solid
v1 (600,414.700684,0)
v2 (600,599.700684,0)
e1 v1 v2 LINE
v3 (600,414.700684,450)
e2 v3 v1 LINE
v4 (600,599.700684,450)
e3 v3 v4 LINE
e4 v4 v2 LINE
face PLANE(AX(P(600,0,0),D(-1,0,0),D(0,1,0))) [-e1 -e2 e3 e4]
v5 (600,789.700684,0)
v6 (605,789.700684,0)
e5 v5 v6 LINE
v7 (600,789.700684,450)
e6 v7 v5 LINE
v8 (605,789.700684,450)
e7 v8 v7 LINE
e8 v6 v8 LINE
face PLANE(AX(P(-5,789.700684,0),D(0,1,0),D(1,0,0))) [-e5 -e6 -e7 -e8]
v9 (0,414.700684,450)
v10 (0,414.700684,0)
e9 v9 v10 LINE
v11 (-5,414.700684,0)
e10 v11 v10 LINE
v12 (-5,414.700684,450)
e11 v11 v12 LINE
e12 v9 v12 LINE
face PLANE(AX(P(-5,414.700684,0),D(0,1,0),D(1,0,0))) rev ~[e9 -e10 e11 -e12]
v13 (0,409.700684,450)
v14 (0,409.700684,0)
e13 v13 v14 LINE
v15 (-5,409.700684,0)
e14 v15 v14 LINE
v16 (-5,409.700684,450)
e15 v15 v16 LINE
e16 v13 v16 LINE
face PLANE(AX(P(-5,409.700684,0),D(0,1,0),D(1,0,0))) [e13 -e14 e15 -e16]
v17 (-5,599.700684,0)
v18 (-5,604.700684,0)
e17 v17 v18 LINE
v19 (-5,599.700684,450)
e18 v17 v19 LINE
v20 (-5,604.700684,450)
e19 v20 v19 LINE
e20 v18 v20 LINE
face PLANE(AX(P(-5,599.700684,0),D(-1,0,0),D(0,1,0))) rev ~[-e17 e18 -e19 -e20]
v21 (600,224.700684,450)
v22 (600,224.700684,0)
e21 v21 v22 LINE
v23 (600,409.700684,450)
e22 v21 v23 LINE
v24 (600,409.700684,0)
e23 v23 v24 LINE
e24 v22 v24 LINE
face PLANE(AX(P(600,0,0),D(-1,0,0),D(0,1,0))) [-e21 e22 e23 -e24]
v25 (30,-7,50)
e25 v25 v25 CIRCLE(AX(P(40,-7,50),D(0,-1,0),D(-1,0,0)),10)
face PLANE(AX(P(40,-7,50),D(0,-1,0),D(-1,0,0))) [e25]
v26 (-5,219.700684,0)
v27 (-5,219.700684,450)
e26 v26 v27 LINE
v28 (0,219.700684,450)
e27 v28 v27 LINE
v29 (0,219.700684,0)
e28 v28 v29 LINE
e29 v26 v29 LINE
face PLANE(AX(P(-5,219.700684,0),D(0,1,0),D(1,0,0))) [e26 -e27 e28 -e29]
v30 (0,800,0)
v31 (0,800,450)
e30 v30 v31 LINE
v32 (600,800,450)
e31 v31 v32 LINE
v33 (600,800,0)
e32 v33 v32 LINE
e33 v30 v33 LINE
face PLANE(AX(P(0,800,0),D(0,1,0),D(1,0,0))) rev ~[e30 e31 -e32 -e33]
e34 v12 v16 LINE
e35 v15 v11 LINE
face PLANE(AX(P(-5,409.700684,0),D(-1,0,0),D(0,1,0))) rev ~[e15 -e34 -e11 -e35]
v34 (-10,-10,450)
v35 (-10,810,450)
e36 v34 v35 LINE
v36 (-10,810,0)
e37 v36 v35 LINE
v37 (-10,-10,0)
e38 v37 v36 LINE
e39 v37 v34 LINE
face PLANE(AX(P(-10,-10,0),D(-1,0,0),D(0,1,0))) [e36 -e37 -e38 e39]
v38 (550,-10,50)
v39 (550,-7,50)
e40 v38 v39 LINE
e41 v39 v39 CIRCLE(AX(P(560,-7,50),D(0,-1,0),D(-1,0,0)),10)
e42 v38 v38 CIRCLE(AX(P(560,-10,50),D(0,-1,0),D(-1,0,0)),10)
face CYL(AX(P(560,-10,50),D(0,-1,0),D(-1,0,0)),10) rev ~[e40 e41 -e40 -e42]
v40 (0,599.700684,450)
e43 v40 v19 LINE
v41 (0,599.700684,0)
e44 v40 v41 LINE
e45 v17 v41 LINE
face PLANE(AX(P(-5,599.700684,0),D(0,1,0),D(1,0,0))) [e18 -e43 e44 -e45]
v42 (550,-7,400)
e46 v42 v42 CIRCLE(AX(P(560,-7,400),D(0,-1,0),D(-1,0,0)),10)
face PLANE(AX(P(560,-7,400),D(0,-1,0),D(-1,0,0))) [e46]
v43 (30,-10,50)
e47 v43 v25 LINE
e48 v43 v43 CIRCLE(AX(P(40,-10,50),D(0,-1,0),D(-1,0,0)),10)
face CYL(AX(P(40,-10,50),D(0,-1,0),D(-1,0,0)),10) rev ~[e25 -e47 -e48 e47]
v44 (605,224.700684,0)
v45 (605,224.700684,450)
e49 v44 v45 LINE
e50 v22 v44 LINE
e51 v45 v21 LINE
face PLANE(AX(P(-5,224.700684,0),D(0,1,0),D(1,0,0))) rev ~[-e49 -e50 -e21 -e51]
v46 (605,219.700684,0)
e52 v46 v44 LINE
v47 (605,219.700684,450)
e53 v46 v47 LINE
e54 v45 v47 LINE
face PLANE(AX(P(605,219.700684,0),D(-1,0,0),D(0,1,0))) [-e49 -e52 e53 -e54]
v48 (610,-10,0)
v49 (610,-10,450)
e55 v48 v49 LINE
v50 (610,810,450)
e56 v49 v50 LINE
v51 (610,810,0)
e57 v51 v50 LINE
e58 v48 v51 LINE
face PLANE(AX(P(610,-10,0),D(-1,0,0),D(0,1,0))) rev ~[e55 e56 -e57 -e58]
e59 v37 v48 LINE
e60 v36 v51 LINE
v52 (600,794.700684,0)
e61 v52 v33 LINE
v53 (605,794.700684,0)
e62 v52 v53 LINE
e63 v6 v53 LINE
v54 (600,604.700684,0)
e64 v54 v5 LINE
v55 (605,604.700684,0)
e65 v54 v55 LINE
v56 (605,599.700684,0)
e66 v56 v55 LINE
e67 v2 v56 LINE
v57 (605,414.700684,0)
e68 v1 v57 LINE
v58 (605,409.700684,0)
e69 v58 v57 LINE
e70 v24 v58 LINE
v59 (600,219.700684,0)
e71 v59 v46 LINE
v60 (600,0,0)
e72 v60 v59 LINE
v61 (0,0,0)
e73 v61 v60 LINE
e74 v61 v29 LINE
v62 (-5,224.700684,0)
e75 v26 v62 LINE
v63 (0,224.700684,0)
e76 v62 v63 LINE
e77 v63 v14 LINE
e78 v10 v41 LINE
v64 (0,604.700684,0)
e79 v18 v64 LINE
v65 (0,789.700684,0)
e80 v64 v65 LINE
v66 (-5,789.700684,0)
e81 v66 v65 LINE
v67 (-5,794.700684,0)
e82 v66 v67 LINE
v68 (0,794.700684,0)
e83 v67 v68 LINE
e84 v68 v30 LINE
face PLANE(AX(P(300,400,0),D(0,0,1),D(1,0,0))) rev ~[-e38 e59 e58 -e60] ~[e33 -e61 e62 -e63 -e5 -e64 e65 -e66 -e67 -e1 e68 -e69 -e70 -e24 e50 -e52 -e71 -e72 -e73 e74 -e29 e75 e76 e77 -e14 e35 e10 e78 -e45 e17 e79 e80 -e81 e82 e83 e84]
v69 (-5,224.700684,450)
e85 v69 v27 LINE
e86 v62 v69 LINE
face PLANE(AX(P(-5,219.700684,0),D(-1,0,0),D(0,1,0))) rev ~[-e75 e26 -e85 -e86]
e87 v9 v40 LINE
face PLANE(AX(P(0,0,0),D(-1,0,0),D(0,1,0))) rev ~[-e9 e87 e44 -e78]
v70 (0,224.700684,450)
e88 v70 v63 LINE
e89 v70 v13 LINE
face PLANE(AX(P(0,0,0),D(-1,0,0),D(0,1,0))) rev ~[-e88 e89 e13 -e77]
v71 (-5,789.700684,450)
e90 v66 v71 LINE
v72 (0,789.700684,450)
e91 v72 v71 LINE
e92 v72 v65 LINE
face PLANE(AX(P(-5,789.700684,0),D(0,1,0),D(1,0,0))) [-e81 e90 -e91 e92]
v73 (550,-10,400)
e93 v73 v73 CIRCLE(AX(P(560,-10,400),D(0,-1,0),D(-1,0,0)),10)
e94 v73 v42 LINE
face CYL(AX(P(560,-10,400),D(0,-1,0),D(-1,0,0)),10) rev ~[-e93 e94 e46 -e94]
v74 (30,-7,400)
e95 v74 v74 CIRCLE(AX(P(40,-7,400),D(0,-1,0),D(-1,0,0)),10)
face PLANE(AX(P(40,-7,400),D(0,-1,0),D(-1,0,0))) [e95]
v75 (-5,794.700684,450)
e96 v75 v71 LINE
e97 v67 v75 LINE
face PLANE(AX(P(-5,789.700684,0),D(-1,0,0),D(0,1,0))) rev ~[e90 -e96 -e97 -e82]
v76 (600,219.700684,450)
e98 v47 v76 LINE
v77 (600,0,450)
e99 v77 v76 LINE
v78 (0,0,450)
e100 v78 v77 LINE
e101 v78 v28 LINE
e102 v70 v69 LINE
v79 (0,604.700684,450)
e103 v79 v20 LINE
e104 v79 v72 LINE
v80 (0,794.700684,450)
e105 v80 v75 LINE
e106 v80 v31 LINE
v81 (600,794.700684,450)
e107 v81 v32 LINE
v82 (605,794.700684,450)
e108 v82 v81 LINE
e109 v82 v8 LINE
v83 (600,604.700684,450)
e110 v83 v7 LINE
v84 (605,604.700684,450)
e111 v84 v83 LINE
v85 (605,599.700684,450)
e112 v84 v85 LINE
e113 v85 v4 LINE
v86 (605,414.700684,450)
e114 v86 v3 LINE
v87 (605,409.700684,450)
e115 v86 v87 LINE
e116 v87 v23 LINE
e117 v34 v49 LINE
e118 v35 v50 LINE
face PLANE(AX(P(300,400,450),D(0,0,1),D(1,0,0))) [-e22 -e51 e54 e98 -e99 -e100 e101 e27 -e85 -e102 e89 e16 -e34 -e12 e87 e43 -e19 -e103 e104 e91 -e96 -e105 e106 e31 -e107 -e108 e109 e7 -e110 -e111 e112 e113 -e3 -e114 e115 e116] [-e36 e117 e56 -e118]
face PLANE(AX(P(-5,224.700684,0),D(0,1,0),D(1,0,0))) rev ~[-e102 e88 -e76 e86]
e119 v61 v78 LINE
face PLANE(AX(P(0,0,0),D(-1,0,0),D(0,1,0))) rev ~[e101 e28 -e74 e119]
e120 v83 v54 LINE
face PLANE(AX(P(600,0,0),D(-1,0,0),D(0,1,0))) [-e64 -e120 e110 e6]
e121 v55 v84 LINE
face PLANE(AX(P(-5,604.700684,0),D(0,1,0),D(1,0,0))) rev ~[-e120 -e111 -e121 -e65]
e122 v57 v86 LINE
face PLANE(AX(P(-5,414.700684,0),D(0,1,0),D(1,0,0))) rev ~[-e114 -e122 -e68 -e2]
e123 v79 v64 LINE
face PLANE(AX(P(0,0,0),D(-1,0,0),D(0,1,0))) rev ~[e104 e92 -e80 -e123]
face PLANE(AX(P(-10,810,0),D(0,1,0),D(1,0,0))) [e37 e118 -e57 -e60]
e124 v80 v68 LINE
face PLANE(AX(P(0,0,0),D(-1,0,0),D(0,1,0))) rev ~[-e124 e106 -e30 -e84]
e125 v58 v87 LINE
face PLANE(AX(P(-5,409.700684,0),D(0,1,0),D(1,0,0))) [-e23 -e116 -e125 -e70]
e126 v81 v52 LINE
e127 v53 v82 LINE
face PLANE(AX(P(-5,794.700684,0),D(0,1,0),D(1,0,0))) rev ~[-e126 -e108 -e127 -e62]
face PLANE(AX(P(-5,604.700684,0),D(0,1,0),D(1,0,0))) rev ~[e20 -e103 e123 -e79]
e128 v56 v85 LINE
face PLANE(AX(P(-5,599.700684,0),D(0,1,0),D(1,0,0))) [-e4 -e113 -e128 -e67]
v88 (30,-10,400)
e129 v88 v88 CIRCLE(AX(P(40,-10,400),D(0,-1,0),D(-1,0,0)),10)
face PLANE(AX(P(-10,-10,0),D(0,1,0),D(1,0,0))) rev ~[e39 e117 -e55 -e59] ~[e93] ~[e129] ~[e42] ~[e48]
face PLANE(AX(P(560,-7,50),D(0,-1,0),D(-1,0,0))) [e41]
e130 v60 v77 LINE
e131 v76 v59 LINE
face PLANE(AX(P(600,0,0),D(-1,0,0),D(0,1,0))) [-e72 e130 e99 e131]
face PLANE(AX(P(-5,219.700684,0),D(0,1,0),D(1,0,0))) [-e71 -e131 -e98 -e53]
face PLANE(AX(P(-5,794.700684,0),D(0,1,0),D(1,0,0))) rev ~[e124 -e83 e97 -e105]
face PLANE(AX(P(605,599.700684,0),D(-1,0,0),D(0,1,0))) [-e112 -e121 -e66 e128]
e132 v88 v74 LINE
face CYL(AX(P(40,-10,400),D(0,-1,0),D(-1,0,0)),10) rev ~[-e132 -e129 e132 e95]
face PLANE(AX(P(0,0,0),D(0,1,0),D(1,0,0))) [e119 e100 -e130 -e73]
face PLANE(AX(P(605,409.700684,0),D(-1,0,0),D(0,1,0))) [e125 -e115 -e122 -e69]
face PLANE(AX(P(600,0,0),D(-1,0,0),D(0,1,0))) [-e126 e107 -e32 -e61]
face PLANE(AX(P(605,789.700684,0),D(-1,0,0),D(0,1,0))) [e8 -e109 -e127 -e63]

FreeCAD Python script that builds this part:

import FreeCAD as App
import Part
import Sketcher
from FreeCAD import Vector

doc = App.newDocument("Part")
body = doc.addObject("PartDesign::Body", "Body")

sketch1 = doc.addObject("Sketcher::SketchObject", "Sketch")
body.addObject(sketch1)
sketch1.AttachmentSupport = (doc.XY_Plane, [""])
sketch1.MapMode = "FlatFace"
sketch1.addGeometry([
    Part.LineSegment(Vector(-10, 810, 0), Vector(-10, -10, 0)),
    Part.LineSegment(Vector(-10, -10, 0), Vector(610, -10, 0)),
    Part.LineSegment(Vector(610, -10, 0), Vector(610, 810, 0)),
    Part.LineSegment(Vector(610, 810, 0), Vector(-10, 810, 0)),
    Part.LineSegment(Vector(600, 0, 0), Vector(0, 0, 0)),
    Part.LineSegment(Vector(0, 0, 0), Vector(0, 800, 0)),
    Part.LineSegment(Vector(0, 800, 0), Vector(600, 800, 0)),
    Part.LineSegment(Vector(600, 800, 0), Vector(600, 0, 0)),
], False)
sketch1.addConstraint([
    Sketcher.Constraint("Coincident", 0, 2, 1, 1),
    Sketcher.Constraint("Coincident", 1, 2, 2, 1),
    Sketcher.Constraint("Coincident", 2, 2, 3, 1),
    Sketcher.Constraint("Coincident", 3, 2, 0, 1),
    Sketcher.Constraint("Coincident", 4, 2, 5, 1),
    Sketcher.Constraint("Coincident", 5, 2, 6, 1),
    Sketcher.Constraint("Coincident", 6, 2, 7, 1),
    Sketcher.Constraint("Coincident", 7, 2, 4, 1),
    Sketcher.Constraint("Vertical", 0),
    Sketcher.Constraint("Horizontal", 1),
    Sketcher.Constraint("Vertical", 2),
    Sketcher.Constraint("Horizontal", 3),
    Sketcher.Constraint("Horizontal", 4),
    Sketcher.Constraint("Vertical", 5),
    Sketcher.Constraint("Horizontal", 6),
    Sketcher.Constraint("Vertical", 7),
    Sketcher.Constraint("Coincident", 4, 2, -1, 1),
    Sketcher.Constraint("DistanceX", 1, 1, 1, 2, 620.0),
    Sketcher.Constraint("DistanceX", 4, 2, 4, 1, 600.0),
    Sketcher.Constraint("DistanceY", 0, 2, 0, 1, 820.0),
    Sketcher.Constraint("DistanceY", 5, 1, 5, 2, 800.0),
    Sketcher.Constraint("DistanceX", 0, 2, -1, 1, 10.0),
    Sketcher.Constraint("DistanceY", 0, 2, -1, 1, 10.0),
])
pad1 = doc.addObject("PartDesign::Pad", "Pad")
body.addObject(pad1)
pad1.Profile = sketch1
pad1.Length = 450

sketch2 = doc.addObject("Sketcher::SketchObject", "Sketch001")
body.addObject(sketch2)
sketch2.AttachmentSupport = (doc.XY_Plane, [""])
sketch2.MapMode = "FlatFace"
sketch2.addGeometry([
    Part.LineSegment(Vector(-5, 605, 0), Vector(-5, 600, 0)),
    Part.LineSegment(Vector(-5, 600, 0), Vector(605, 600, 0)),
    Part.LineSegment(Vector(605, 600, 0), Vector(605, 605, 0)),
    Part.LineSegment(Vector(605, 605, 0), Vector(-5, 605, 0)),
    Part.LineSegment(Vector(-5, 795, 0), Vector(-5, 790, 0)),
    Part.LineSegment(Vector(-5, 790, 0), Vector(605, 790, 0)),
    Part.LineSegment(Vector(605, 790, 0), Vector(605, 795, 0)),
    Part.LineSegment(Vector(605, 795, 0), Vector(-5, 795, 0)),
    Part.LineSegment(Vector(-5, 415, 0), Vector(-5, 410, 0)),
    Part.LineSegment(Vector(-5, 410, 0), Vector(605, 410, 0)),
    Part.LineSegment(Vector(605, 410, 0), Vector(605, 415, 0)),
    Part.LineSegment(Vector(605, 415, 0), Vector(-5, 415, 0)),
    Part.LineSegment(Vector(-5, 225, 0), Vector(-5, 220, 0)),
    Part.LineSegment(Vector(-5, 220, 0), Vector(605, 220, 0)),
    Part.LineSegment(Vector(605, 220, 0), Vector(605, 225, 0)),
    Part.LineSegment(Vector(605, 225, 0), Vector(-5, 225, 0)),
], False)
sketch2.addConstraint([
    Sketcher.Constraint("Coincident", 0, 2, 1, 1),
    Sketcher.Constraint("Coincident", 1, 2, 2, 1),
    Sketcher.Constraint("Coincident", 2, 2, 3, 1),
    Sketcher.Constraint("Coincident", 3, 2, 0, 1),
    Sketcher.Constraint("Coincident", 4, 2, 5, 1),
    Sketcher.Constraint("Coincident", 5, 2, 6, 1),
    Sketcher.Constraint("Coincident", 6, 2, 7, 1),
    Sketcher.Constraint("Coincident", 7, 2, 4, 1),
    Sketcher.Constraint("Coincident", 8, 2, 9, 1),
    Sketcher.Constraint("Coincident", 9, 2, 10, 1),
    Sketcher.Constraint("Coincident", 10, 2, 11, 1),
    Sketcher.Constraint("Coincident", 11, 2, 8, 1),
    Sketcher.Constraint("Coincident", 12, 2, 13, 1),
    Sketcher.Constraint("Coincident", 13, 2, 14, 1),
    Sketcher.Constraint("Coincident", 14, 2, 15, 1),
    Sketcher.Constraint("Coincident", 15, 2, 12, 1),
    Sketcher.Constraint("Vertical", 0),
    Sketcher.Constraint("Horizontal", 1),
    Sketcher.Constraint("Vertical", 2),
    Sketcher.Constraint("Horizontal", 3),
    Sketcher.Constraint("Vertical", 4),
    Sketcher.Constraint("Horizontal", 5),
    Sketcher.Constraint("Vertical", 6),
    Sketcher.Constraint("Horizontal", 7),
    Sketcher.Constraint("Vertical", 8),
    Sketcher.Constraint("Horizontal", 9),
    Sketcher.Constraint("Vertical", 10),
    Sketcher.Constraint("Horizontal", 11),
    Sketcher.Constraint("Vertical", 12),
    Sketcher.Constraint("Horizontal", 13),
    Sketcher.Constraint("Vertical", 14),
    Sketcher.Constraint("Horizontal", 15),
    Sketcher.Constraint("Vertical", 3, 2, 4, 2),
    Sketcher.Constraint("Vertical", 2, 2, 5, 2),
    Sketcher.Constraint("Vertical", 7, 2, 8, 2),
    Sketcher.Constraint("Vertical", 6, 2, 9, 2),
    Sketcher.Constraint("Vertical", 11, 2, 12, 2),
    Sketcher.Constraint("Vertical", 10, 2, 13, 2),
    Sketcher.Constraint("Equal", 2, 4),
    Sketcher.Constraint("Equal", 6, 8),
    Sketcher.Constraint("Equal", 10, 12),
    Sketcher.Constraint("DistanceX", 1, 1, 1, 2, 610.0),
    Sketcher.Constraint("DistanceY", 0, 2, 0, 1, 5.0),
    Sketcher.Constraint("DistanceX", 0, 2, -1, 1, 5.0),
    Sketcher.Constraint("DistanceY", 3, 2, 4, 2, 185.0),
    Sketcher.Constraint("DistanceY", 8, 2, 0, 2, 190.0),
    Sketcher.Constraint("DistanceY", 12, 2, 8, 2, 190.0),
    Sketcher.Constraint("DistanceY", -1, 1, 0, 2, 599.700684),
])
pocket1 = doc.addObject("PartDesign::Pocket", "Pocket")
body.addObject(pocket1)
pocket1.Profile = sketch2
pocket1.Type = "ThroughAll"
pocket1.Midplane = True

sketch3 = doc.addObject("Sketcher::SketchObject", "Sketch002")
body.addObject(sketch3)
sketch3.AttachmentSupport = (doc.XZ_Plane, [""])
sketch3.MapMode = "FlatFace"
sketch3.AttachmentOffset = App.Placement(Vector(0, 0, 10), App.Rotation())
sketch3.addGeometry([
    Part.Circle(Vector(560, 50, 0), Vector(0, 0, 1), 10),
    Part.Circle(Vector(40, 50, 0), Vector(0, 0, 1), 10),
    Part.Circle(Vector(560, 400, 0), Vector(0, 0, 1), 10),
    Part.Circle(Vector(40, 400, 0), Vector(0, 0, 1), 10),
], False)
sketch3.addConstraint([
    Sketcher.Constraint("Equal", 0, 1),
    Sketcher.Constraint("Equal", 1, 2),
    Sketcher.Constraint("Equal", 2, 3),
    Sketcher.Constraint("Horizontal", 0, 3, 1, 3),
    Sketcher.Constraint("Horizontal", 2, 3, 3, 3),
    Sketcher.Constraint("Vertical", 0, 3, 2, 3),
    Sketcher.Constraint("Vertical", 1, 3, 3, 3),
    Sketcher.Constraint("Diameter", 0, 20.0),
    Sketcher.Constraint("DistanceX", -1, 1, 0, 3, 560.0),
    Sketcher.Constraint("DistanceY", -1, 1, 0, 3, 50.0),
    Sketcher.Constraint("DistanceX", -1, 1, 1, 3, 40.0),
    Sketcher.Constraint("DistanceY", -1, 1, 2, 3, 400.0),
])
pocket2 = doc.addObject("PartDesign::Pocket", "Pocket001")
body.addObject(pocket2)
pocket2.Profile = sketch3
pocket2.Length = 3

doc.recompute()
